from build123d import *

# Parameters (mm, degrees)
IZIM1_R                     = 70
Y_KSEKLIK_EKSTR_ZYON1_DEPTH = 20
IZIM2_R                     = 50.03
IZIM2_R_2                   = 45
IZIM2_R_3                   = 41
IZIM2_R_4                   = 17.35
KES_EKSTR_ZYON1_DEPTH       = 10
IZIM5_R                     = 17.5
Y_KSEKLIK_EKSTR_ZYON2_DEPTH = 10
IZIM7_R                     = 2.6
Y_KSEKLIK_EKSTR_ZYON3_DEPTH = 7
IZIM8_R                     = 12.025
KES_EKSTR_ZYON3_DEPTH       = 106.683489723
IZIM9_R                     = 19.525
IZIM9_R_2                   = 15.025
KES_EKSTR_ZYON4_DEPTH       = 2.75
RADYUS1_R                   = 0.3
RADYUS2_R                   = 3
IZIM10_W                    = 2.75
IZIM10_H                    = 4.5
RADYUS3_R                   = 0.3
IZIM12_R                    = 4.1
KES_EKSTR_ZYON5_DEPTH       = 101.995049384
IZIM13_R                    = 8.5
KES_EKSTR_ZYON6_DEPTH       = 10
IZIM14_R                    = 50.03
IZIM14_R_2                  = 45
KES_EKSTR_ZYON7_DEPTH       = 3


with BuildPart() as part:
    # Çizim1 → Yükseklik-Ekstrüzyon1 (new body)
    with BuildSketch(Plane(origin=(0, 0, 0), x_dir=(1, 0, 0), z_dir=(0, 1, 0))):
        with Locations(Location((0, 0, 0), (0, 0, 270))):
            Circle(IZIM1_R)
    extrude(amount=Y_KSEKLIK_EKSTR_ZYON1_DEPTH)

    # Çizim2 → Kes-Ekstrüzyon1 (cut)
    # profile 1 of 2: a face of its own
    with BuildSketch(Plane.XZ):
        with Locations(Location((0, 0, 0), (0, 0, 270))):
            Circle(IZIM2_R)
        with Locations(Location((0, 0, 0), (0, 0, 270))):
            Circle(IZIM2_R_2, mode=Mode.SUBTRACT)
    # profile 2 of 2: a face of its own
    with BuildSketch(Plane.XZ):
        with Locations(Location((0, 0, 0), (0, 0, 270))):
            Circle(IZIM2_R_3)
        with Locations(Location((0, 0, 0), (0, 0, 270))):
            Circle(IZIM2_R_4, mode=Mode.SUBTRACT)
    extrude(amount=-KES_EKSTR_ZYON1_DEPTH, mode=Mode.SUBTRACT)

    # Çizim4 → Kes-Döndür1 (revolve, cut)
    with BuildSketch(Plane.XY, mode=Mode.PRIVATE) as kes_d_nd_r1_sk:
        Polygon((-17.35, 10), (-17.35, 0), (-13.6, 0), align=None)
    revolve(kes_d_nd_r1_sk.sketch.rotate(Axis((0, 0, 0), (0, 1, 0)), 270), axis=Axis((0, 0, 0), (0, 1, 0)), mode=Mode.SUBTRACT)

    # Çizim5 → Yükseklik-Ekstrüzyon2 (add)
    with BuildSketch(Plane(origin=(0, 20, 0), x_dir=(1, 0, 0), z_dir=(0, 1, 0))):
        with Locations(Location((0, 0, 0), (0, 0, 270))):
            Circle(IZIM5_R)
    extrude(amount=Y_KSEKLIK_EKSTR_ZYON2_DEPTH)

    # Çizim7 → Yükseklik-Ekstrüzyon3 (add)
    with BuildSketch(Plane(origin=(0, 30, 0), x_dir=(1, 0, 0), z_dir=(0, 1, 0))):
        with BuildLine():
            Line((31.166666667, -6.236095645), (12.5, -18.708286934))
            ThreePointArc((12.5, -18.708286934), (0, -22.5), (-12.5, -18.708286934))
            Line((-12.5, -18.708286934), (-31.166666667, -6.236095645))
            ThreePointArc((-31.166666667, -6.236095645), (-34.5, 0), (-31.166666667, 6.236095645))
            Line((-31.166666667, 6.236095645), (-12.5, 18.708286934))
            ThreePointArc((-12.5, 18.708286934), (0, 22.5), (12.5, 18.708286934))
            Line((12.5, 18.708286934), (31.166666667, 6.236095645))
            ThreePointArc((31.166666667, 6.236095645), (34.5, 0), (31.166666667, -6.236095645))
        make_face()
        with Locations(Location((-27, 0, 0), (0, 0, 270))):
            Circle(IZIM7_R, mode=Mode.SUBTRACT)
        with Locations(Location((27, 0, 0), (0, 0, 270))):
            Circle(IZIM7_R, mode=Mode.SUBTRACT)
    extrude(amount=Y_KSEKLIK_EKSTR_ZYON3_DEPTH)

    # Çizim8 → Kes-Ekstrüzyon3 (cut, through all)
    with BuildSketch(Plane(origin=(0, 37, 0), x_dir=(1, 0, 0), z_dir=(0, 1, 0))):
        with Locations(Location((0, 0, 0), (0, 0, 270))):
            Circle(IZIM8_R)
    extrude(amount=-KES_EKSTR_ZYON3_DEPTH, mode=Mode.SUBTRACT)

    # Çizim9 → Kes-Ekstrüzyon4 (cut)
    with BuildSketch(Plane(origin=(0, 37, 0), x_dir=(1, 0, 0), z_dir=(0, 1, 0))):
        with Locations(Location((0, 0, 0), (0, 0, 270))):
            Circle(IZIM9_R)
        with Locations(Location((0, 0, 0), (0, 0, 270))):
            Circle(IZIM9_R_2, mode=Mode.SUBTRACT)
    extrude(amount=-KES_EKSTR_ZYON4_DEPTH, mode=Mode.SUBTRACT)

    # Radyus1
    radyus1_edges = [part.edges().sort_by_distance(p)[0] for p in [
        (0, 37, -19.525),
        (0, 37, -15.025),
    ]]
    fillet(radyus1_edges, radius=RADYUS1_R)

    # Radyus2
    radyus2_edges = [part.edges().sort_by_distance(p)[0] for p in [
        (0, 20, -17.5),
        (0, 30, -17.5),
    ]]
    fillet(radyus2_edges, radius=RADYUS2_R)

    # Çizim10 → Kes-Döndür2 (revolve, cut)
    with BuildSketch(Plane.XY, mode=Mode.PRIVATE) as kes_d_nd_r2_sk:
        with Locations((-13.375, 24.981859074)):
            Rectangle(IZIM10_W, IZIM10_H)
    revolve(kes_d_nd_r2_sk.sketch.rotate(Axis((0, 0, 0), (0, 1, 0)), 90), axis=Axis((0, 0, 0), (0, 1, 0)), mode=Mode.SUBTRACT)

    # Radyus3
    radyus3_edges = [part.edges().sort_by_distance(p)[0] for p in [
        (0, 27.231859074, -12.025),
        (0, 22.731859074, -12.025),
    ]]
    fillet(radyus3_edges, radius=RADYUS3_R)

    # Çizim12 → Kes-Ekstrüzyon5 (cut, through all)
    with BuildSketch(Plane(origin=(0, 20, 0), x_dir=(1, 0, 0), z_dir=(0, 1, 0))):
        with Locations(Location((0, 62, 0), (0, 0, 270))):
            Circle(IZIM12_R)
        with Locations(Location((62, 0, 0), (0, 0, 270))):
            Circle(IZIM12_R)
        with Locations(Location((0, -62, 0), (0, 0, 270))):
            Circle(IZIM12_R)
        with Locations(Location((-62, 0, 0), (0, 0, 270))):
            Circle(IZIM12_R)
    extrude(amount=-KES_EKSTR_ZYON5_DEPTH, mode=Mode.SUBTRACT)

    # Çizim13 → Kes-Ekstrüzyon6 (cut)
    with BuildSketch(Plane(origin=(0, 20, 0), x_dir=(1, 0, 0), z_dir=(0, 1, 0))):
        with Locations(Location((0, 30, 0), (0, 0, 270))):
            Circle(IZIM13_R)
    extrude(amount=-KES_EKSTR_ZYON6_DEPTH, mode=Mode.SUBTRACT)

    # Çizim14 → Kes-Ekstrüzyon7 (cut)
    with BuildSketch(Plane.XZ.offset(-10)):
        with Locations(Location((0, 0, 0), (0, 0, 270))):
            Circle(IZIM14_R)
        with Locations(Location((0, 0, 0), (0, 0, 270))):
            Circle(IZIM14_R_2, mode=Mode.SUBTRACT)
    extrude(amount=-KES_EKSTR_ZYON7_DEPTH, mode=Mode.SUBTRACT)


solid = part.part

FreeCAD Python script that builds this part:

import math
import FreeCAD as App
import Part
import Sketcher

V = App.Vector


def edges_at(feature, points):
    """Names of the edges that pass closest to the given points."""
    edges = feature.Shape.Edges
    near = lambda p: min(range(len(edges)), key=lambda i: edges[i].distToShape(Part.Vertex(*p))[0])
    return sorted({f"Edge{near(p) + 1}" for p in points})


def add_polygon(sketch, points):
    """Adds a closed chain of lines whose ends are joined by coincident constraints."""
    first, n = sketch.GeometryCount, len(points)
    for a, b in zip(points, points[1:] + points[:1]):
        sketch.addGeometry(Part.LineSegment(App.Vector(*a, 0), App.Vector(*b, 0)), False)
    for i in range(n):
        sketch.addConstraint(Sketcher.Constraint("Coincident", first + i, 2, first + (i + 1) % n, 1))

doc = App.newDocument("Part")
body = doc.addObject("PartDesign::Body", "Body")

# Sketch on XZ plane
sketch1 = doc.addObject("Sketcher::SketchObject", "Sketch")
body.addObject(sketch1)
sketch1.AttachmentSupport = (doc.XZ_Plane, [""])
sketch1.MapMode = "FlatFace"
sketch1.addGeometry(Part.Circle(V(0, 0, 0), V(0, 0, 1), 70), False)
sketch1.addConstraint([
    Sketcher.Constraint("Coincident", 0, 3, -1, 1),
    Sketcher.Constraint("Diameter", 0, 140.0),
])
pad1 = doc.addObject("PartDesign::Pad", "Pad")
body.addObject(pad1)
pad1.Profile = sketch1
pad1.Length = 20
pad1.Reversed = True

# Sketch on XZ plane
sketch2 = doc.addObject("Sketcher::SketchObject", "Sketch001")
body.addObject(sketch2)
sketch2.AttachmentSupport = (doc.XZ_Plane, [""])
sketch2.MapMode = "FlatFace"
sketch2.addGeometry([
    Part.Circle(V(0, 0, 0), V(0, 0, 1), 50),
    Part.Circle(V(0, 0, 0), V(0, 0, 1), 45),
    Part.Circle(V(0, 0, 0), V(0, 0, 1), 41),
    Part.Circle(V(0, 0, 0), V(0, 0, 1), 17),
], False)
sketch2.addConstraint([
    Sketcher.Constraint("Coincident", 0, 3, -1, 1),
    Sketcher.Constraint("Coincident", 1, 3, -1, 1),
    Sketcher.Constraint("Coincident", 2, 3, -1, 1),
    Sketcher.Constraint("Coincident", 3, 3, -1, 1),
    Sketcher.Constraint("Diameter", 1, 90.0),
    Sketcher.Constraint("Diameter", 2, 82.0),
    Sketcher.Constraint("Diameter", 3, 34.7),
    Sketcher.Constraint("Diameter", 0, 100.06),
])
pocket1 = doc.addObject("PartDesign::Pocket", "Pocket")
body.addObject(pocket1)
pocket1.Profile = sketch2
pocket1.Length = 10

# Sketch on XY plane
sketch3 = doc.addObject("Sketcher::SketchObject", "Sketch002")
body.addObject(sketch3)
sketch3.AttachmentSupport = (doc.XY_Plane, [""])
sketch3.MapMode = "FlatFace"
add_polygon(sketch3, [(-17.4, 10), (-17.4, 0), (-13.6, 0)])  # lines 0-2
sketch3.addConstraint([
    Sketcher.Constraint("Vertical", 0),
    Sketcher.Constraint("Horizontal", 1),
    Sketcher.Constraint("PointOnObject", 0, 2, -1),
    Sketcher.Constraint("DistanceY", 0, 2, 0, 1, 10.0),
    Sketcher.Constraint("DistanceX", 1, 1, 1, 2, 3.75),
    Sketcher.Constraint("DistanceX", 1, 2, -1, 1, 13.6),
])
groove = doc.addObject("PartDesign::Groove", "Groove")
body.addObject(groove)
groove.Profile = sketch3
groove.ReferenceAxis = (sketch3, ["V_Axis"])
groove.Angle = 360

# Sketch on XZ plane
sketch4 = doc.addObject("Sketcher::SketchObject", "Sketch003")
body.addObject(sketch4)
sketch4.AttachmentSupport = (doc.XZ_Plane, [""])
sketch4.MapMode = "FlatFace"
sketch4.AttachmentOffset = App.Placement(V(0, 0, -20), App.Rotation())
sketch4.addGeometry(Part.Circle(V(0, 0, 0), V(0, 0, 1), 18), False)
sketch4.addConstraint([
    Sketcher.Constraint("Coincident", 0, 3, -1, 1),
    Sketcher.Constraint("Diameter", 0, 35.0),
])
pad2 = doc.addObject("PartDesign::Pad", "Pad001")
body.addObject(pad2)
pad2.Profile = sketch4
pad2.Length = 10
pad2.Reversed = True

# Sketch on XZ plane
sketch5 = doc.addObject("Sketcher::SketchObject", "Sketch004")
body.addObject(sketch5)
sketch5.AttachmentSupport = (doc.XZ_Plane, [""])
sketch5.MapMode = "FlatFace"
sketch5.AttachmentOffset = App.Placement(V(0, 0, -30), App.Rotation())
sketch5.addGeometry([
    Part.LineSegment(V(12.5, 18.7, 0), V(31.2, 6.2, 0)),  # 0
    Part.ArcOfCircle(Part.Circle(V(27, 0, 0), V(0, 0, 1), 7.5), math.radians(-56), math.radians(56)),  # 1
    Part.LineSegment(V(31.2, -6.2, 0), V(12.5, -18.7, 0)),  # 2
    Part.ArcOfCircle(Part.Circle(V(0, 0, 0), V(0, 0, 1), 22.5), math.radians(-124), math.radians(-56)),  # 3
    Part.LineSegment(V(-12.5, -18.7, 0), V(-31.2, -6.2, 0)),  # 4
    Part.ArcOfCircle(Part.Circle(V(-27, 0, 0), V(0, 0, 1), 7.5), math.radians(124), math.radians(236)),  # 5
    Part.LineSegment(V(-31.2, 6.2, 0), V(-12.5, 18.7, 0)),  # 6
    Part.ArcOfCircle(Part.Circle(V(0, 0, 0), V(0, 0, 1), 22.5), math.radians(56), math.radians(124)),  # 7
    Part.Circle(V(27, 0, 0), V(0, 0, 1), 2.6),  # 8
    Part.Circle(V(-27, 0, 0), V(0, 0, 1), 2.6),  # 9
], False)
sketch5.addConstraint([
    Sketcher.Constraint("Tangent", 0, 2, 1, 2),
    Sketcher.Constraint("Tangent", 1, 1, 2, 1),
    Sketcher.Constraint("Tangent", 2, 2, 3, 2),
    Sketcher.Constraint("Tangent", 3, 1, 4, 1),
    Sketcher.Constraint("Tangent", 4, 2, 5, 2),
    Sketcher.Constraint("Tangent", 5, 1, 6, 1),
    Sketcher.Constraint("Tangent", 6, 2, 7, 2),
    Sketcher.Constraint("Tangent", 7, 1, 0, 1),
    Sketcher.Constraint("Coincident", 3, 3, -1, 1),
    Sketcher.Constraint("Coincident", 7, 3, -1, 1),
    Sketcher.Constraint("Coincident", 8, 3, 1, 3),
    Sketcher.Constraint("Coincident", 9, 3, 5, 3),
    Sketcher.Constraint("Equal", 1, 5),
    Sketcher.Constraint("Equal", 3, 7),
    Sketcher.Constraint("Equal", 8, 9),
    Sketcher.Constraint("Symmetric", 1, 3, 5, 3, -1, 1),
    Sketcher.Constraint("PointOnObject", 1, 3, -1),
    Sketcher.Constraint("Diameter", 8, 5.2),
    Sketcher.Constraint("Radius", 1, 7.5),
    Sketcher.Constraint("Radius", 3, 22.5),
    Sketcher.Constraint("DistanceX", -1, 1, 1, 3, 27.0),
])
pad3 = doc.addObject("PartDesign::Pad", "Pad002")
body.addObject(pad3)
pad3.Profile = sketch5
pad3.Length = 7
pad3.Reversed = True

# Sketch on XZ plane
sketch6 = doc.addObject("Sketcher::SketchObject", "Sketch005")
body.addObject(sketch6)
sketch6.AttachmentSupport = (doc.XZ_Plane, [""])
sketch6.MapMode = "FlatFace"
sketch6.AttachmentOffset = App.Placement(V(0, 0, -37), App.Rotation())
sketch6.addGeometry(Part.Circle(V(0, 0, 0), V(0, 0, 1), 12), False)
sketch6.addConstraint([
    Sketcher.Constraint("Coincident", 0, 3, -1, 1),
    Sketcher.Constraint("Diameter", 0, 24.05),
])
pocket2 = doc.addObject("PartDesign::Pocket", "Pocket001")
body.addObject(pocket2)
pocket2.Profile = sketch6
pocket2.Type = "ThroughAll"
pocket2.Reversed = True

# Sketch on XZ plane
sketch7 = doc.addObject("Sketcher::SketchObject", "Sketch006")
body.addObject(sketch7)
sketch7.AttachmentSupport = (doc.XZ_Plane, [""])
sketch7.MapMode = "FlatFace"
sketch7.AttachmentOffset = App.Placement(V(0, 0, -37), App.Rotation())
sketch7.addGeometry([
    Part.Circle(V(0, 0, 0), V(0, 0, 1), 20),
    Part.Circle(V(0, 0, 0), V(0, 0, 1), 15),
], False)
sketch7.addConstraint([
    Sketcher.Constraint("Coincident", 0, 3, -1, 1),
    Sketcher.Constraint("Coincident", 1, 3, -1, 1),
    Sketcher.Constraint("Diameter", 0, 39.05),
    Sketcher.Constraint("Diameter", 1, 30.05),
])
pocket3 = doc.addObject("PartDesign::Pocket", "Pocket002")
body.addObject(pocket3)
pocket3.Profile = sketch7
pocket3.Length = 2.75
pocket3.Reversed = True
doc.recompute()

fillet = doc.addObject("PartDesign::Fillet", "Fillet")
body.addObject(fillet)
fillet.Base = (pocket3, edges_at(pocket3, [(0, 37, -19.525), (0, 37, -15.025)]))
fillet.Radius = 0.3
doc.recompute()

fillet2 = doc.addObject("PartDesign::Fillet", "Fillet001")
body.addObject(fillet2)
fillet2.Base = (fillet, edges_at(fillet, [(0, 20, -17.5), (0, 30, -17.5)]))
fillet2.Radius = 3

# Sketch on XY plane
sketch8 = doc.addObject("Sketcher::SketchObject", "Sketch007")
body.addObject(sketch8)
sketch8.AttachmentSupport = (doc.XY_Plane, [""])
sketch8.MapMode = "FlatFace"
add_polygon(sketch8, [(-14.8, 27.2), (-14.8, 22.7), (-12, 22.7), (-12, 27.2)])  # lines 0-3
sketch8.addConstraint([
    Sketcher.Constraint("Vertical", 0),
    Sketcher.Constraint("Horizontal", 1),
    Sketcher.Constraint("Vertical", 2),
    Sketcher.Constraint("Horizontal", 3),
    Sketcher.Constraint("DistanceY", 0, 2, 0, 1, 4.5),
    Sketcher.Constraint("DistanceX", 1, 2, -1, 1, 12.0),
    Sketcher.Constraint("DistanceX", 1, 1, 1, 2, 2.75),
    Sketcher.Constraint("DistanceY", -1, 1, 0, 2, 22.731859),
])
groove2 = doc.addObject("PartDesign::Groove", "Groove001")
body.addObject(groove2)
groove2.Profile = sketch8
groove2.ReferenceAxis = (sketch8, ["V_Axis"])
groove2.Angle = 360
doc.recompute()

fillet3 = doc.addObject("PartDesign::Fillet", "Fillet002")
body.addObject(fillet3)
fillet3.Base = (groove2, edges_at(groove2, [(0, 27.232, -12.025), (0, 22.732, -12.025)]))
fillet3.Radius = 0.3

# Sketch on XZ plane
sketch9 = doc.addObject("Sketcher::SketchObject", "Sketch008")
body.addObject(sketch9)
sketch9.AttachmentSupport = (doc.XZ_Plane, [""])
sketch9.MapMode = "FlatFace"
sketch9.AttachmentOffset = App.Placement(V(0, 0, -20), App.Rotation())
sketch9.addGeometry([
    Part.Circle(V(0, -62, 0), V(0, 0, 1), 4.1),
    Part.Circle(V(62, 0, 0), V(0, 0, 1), 4.1),
    Part.Circle(V(0, 62, 0), V(0, 0, 1), 4.1),
    Part.Circle(V(-62, 0, 0), V(0, 0, 1), 4.1),
], False)
sketch9.addConstraint([
    Sketcher.Constraint("Equal", 0, 1),
    Sketcher.Constraint("Equal", 1, 2),
    Sketcher.Constraint("Equal", 2, 3),
    Sketcher.Constraint("Symmetric", 0, 3, 2, 3, -1, 1),
    Sketcher.Constraint("Symmetric", 1, 3, 3, 3, -1, 1),
    Sketcher.Constraint("PointOnObject", 0, 3, -2),
    Sketcher.Constraint("PointOnObject", 1, 3, -1),
    Sketcher.Constraint("Diameter", 0, 8.2),
    Sketcher.Constraint("DistanceY", 0, 3, -1, 1, 62.0),
    Sketcher.Constraint("DistanceX", -1, 1, 1, 3, 62.0),
])
pocket4 = doc.addObject("PartDesign::Pocket", "Pocket003")
body.addObject(pocket4)
pocket4.Profile = sketch9
pocket4.Type = "ThroughAll"
pocket4.Reversed = True

# Sketch on XZ plane
sketch10 = doc.addObject("Sketcher::SketchObject", "Sketch009")
body.addObject(sketch10)
sketch10.AttachmentSupport = (doc.XZ_Plane, [""])
sketch10.MapMode = "FlatFace"
sketch10.AttachmentOffset = App.Placement(V(0, 0, -20), App.Rotation())
sketch10.addGeometry(Part.Circle(V(0, -30, 0), V(0, 0, 1), 8), False)
sketch10.addConstraint([
    Sketcher.Constraint("PointOnObject", 0, 3, -2),
    Sketcher.Constraint("Diameter", 0, 17.0),
    Sketcher.Constraint("DistanceY", 0, 3, -1, 1, 30.0),
])
pocket5 = doc.addObject("PartDesign::Pocket", "Pocket004")
body.addObject(pocket5)
pocket5.Profile = sketch10
pocket5.Length = 10
pocket5.Reversed = True

# Sketch on XZ plane
sketch11 = doc.addObject("Sketcher::SketchObject", "Sketch010")
body.addObject(sketch11)
sketch11.AttachmentSupport = (doc.XZ_Plane, [""])
sketch11.MapMode = "FlatFace"
sketch11.AttachmentOffset = App.Placement(V(0, 0, -10), App.Rotation())
sketch11.addGeometry([
    Part.Circle(V(0, 0, 0), V(0, 0, 1), 50),
    Part.Circle(V(0, 0, 0), V(0, 0, 1), 45),
], False)
sketch11.addConstraint([
    Sketcher.Constraint("Coincident", 0, 3, -1, 1),
    Sketcher.Constraint("Coincident", 1, 3, -1, 1),
    Sketcher.Constraint("Diameter", 1, 90.0),
    Sketcher.Constraint("Diameter", 0, 100.06),
])
pocket6 = doc.addObject("PartDesign::Pocket", "Pocket005")
body.addObject(pocket6)
pocket6.Profile = sketch11
pocket6.Length = 3

doc.recompute()
